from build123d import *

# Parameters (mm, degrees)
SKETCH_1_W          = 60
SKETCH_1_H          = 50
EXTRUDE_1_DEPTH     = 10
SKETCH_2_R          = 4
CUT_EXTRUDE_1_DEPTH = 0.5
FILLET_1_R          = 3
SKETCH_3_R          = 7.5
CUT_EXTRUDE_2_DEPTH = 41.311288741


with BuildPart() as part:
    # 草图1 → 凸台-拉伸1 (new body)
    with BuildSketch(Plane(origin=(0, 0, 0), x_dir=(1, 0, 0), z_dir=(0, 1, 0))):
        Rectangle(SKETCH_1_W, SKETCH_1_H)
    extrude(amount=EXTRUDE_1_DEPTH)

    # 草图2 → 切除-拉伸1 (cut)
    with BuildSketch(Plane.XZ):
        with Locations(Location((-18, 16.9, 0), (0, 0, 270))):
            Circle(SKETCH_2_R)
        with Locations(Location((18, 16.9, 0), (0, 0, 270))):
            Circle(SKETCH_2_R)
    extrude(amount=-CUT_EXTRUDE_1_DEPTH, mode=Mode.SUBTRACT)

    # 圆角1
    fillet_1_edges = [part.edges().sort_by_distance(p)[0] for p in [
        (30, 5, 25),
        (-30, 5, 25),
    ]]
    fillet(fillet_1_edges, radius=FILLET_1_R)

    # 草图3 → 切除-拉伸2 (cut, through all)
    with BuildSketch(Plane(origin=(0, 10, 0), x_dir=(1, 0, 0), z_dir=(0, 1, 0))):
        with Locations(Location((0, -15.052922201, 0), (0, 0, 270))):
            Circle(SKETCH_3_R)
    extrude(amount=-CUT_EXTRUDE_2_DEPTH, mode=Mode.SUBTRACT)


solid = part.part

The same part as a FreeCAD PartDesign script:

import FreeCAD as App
import Part
import Sketcher


def edges_at(feature, points):
    """Names of the edges that pass closest to the given points."""
    edges = feature.Shape.Edges
    near = lambda p: min(range(len(edges)), key=lambda i: edges[i].distToShape(Part.Vertex(*p))[0])
    return sorted({f"Edge{near(p) + 1}" for p in points})


def add_polygon(sketch, points):
    """Adds a closed chain of lines whose ends are joined by coincident constraints."""
    first, n = sketch.GeometryCount, len(points)
    for a, b in zip(points, points[1:] + points[:1]):
        sketch.addGeometry(Part.LineSegment(App.Vector(*a, 0), App.Vector(*b, 0)), False)
    for i in range(n):
        sketch.addConstraint(Sketcher.Constraint("Coincident", first + i, 2, first + (i + 1) % n, 1))

doc = App.newDocument("Part")
params = doc.addObject("Spreadsheet::Sheet", "Params")
for row, (alias, value) in enumerate([
    ("sketch1_width", "60 mm"),
    ("sketch1_height", "50 mm"),
    ("pad1_length", "10 mm"),
    ("sketch2_diameter", "8 mm"),
    ("pocket1_length", "0.5 mm"),
    ("fillet_radius", "3 mm"),
    ("sketch3_diameter", "15 mm"),
], start=1):
    params.set(f"A{row}", alias)
    params.set(f"B{row}", "=" + value)
    params.setAlias(f"B{row}", alias)

body = doc.addObject("PartDesign::Body", "Body")

# Sketch on XZ plane
sketch1 = body.newObject("Sketcher::SketchObject", "Sketch")
sketch1.AttachmentSupport = (doc.getObject("XZ_Plane"), [""])
sketch1.MapMode = "FlatFace"
add_polygon(sketch1, [(-30, -25), (-30, 25), (30, 25), (30, -25)])  # lines 0-3
sketch1.addConstraint([
    Sketcher.Constraint("Vertical", 0),
    Sketcher.Constraint("Horizontal", 1),
    Sketcher.Constraint("Vertical", 2),
    Sketcher.Constraint("Horizontal", 3),
    Sketcher.Constraint("Symmetric", 0, 2, 2, 2, -1, 1),
    Sketcher.Constraint("DistanceX", 1, 1, 1, 2, 60.0),
    Sketcher.Constraint("DistanceY", 0, 1, 0, 2, 50.0),
])
sketch1.setExpression("Constraints[9]", "Params.sketch1_width")
sketch1.setExpression("Constraints[10]", "Params.sketch1_height")
pad1 = body.newObject("PartDesign::Pad", "Pad")
pad1.Profile = sketch1
pad1.setExpression("Length", "Params.pad1_length")
pad1.Reversed = True

# Sketch on XZ plane
sketch2 = body.newObject("Sketcher::SketchObject", "Sketch001")
sketch2.AttachmentSupport = (doc.getObject("XZ_Plane"), [""])
sketch2.MapMode = "FlatFace"
sketch2.addGeometry([
    Part.Circle(App.Vector(-18, 16.9, 0), App.Vector(0, 0, 1), 4),
    Part.Circle(App.Vector(18, 16.9, 0), App.Vector(0, 0, 1), 4),
], False)
sketch2.addConstraint([
    Sketcher.Constraint("Equal", 0, 1),
    Sketcher.Constraint("Symmetric", 0, 3, 1, 3, -2),
    Sketcher.Constraint("Diameter", 0, 8.0),
    Sketcher.Constraint("DistanceX", 0, 3, -1, 1, 18.0),
    Sketcher.Constraint("DistanceY", -1, 1, 0, 3, 16.9),
])
sketch2.setExpression("Constraints[2]", "Params.sketch2_diameter")
pocket1 = body.newObject("PartDesign::Pocket", "Pocket")
pocket1.Profile = sketch2
pocket1.setExpression("Length", "Params.pocket1_length")
doc.recompute()

fillet = body.newObject("PartDesign::Fillet", "Fillet")
fillet.Base = (pocket1, edges_at(pocket1, [(30, 5, 25), (-30, 5, 25)]))
fillet.setExpression("Radius", "Params.fillet_radius")

# Sketch on XZ plane
sketch3 = body.newObject("Sketcher::SketchObject", "Sketch002")
sketch3.AttachmentSupport = (doc.getObject("XZ_Plane"), [""])
sketch3.MapMode = "FlatFace"
sketch3.AttachmentOffset = App.Placement(App.Vector(0, 0, -10), App.Rotation())
sketch3.addGeometry(Part.Circle(App.Vector(0, 15, 0), App.Vector(0, 0, 1), 8), False)
sketch3.addConstraint([
    Sketcher.Constraint("PointOnObject", 0, 3, -2),
    Sketcher.Constraint("Diameter", 0, 15.0),
    Sketcher.Constraint("DistanceY", -1, 1, 0, 3, 15.052922),
])
sketch3.setExpression("Constraints[1]", "Params.sketch3_diameter")
pocket2 = body.newObject("PartDesign::Pocket", "Pocket001")
pocket2.Profile = sketch3
pocket2.Type = "ThroughAll"
pocket2.Reversed = True

doc.recompute()
